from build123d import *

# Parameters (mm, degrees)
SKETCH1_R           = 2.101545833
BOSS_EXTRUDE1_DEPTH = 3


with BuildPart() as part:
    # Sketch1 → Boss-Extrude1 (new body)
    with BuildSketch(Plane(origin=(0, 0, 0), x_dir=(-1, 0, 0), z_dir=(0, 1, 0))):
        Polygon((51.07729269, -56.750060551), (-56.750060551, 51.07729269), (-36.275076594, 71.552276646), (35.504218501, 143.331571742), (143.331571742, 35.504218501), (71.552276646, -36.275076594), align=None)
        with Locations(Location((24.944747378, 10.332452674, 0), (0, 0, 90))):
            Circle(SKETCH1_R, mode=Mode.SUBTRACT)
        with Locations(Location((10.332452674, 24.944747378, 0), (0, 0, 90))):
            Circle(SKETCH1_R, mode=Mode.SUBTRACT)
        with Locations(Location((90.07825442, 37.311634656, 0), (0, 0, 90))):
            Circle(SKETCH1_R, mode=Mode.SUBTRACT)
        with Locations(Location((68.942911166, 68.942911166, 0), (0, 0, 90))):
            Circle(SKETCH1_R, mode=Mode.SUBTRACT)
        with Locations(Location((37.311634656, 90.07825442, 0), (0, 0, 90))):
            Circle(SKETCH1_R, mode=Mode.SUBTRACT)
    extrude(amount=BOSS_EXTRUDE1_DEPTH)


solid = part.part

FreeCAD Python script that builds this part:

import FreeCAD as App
import Part
import Sketcher
from FreeCAD import Vector
Q = App.Units.Quantity


def add_polygon(sketch, points):
    """Adds a closed chain of lines whose ends are joined by coincident constraints."""
    first, n = sketch.GeometryCount, len(points)
    for a, b in zip(points, points[1:] + points[:1]):
        sketch.addGeometry(Part.LineSegment(App.Vector(*a, 0), App.Vector(*b, 0)), False)
    for i in range(n):
        sketch.addConstraint(Sketcher.Constraint("Coincident", first + i, 2, first + (i + 1) % n, 1))

doc = App.newDocument("Part")
body = doc.addObject("PartDesign::Body", "Body")

# Sketch on XZ plane
sketch1 = body.newObject("Sketcher::SketchObject", "Sketch")
sketch1.AttachmentSupport = (doc.getObject("XZ_Plane"), [""])
sketch1.MapMode = "FlatFace"
add_polygon(sketch1, [(56.8, 51.1), (-51.1, -56.8), (-71.6, -36.3), (-143.3, 35.5), (-35.5, 143.3), (36.3, 71.6)])  # lines 0-5
sketch1.addGeometry(Part.Circle(Vector(-90.1, 37.3, 0), Vector(0, 0, 1), 2.1), False)  # 6
sketch1.addGeometry(Part.Circle(Vector(-24.9, 10.3, 0), Vector(0, 0, 1), 2.1), False)  # 7
sketch1.addGeometry(Part.Circle(Vector(-10.3, 24.9, 0), Vector(0, 0, 1), 2.1), False)  # 8
sketch1.addGeometry(Part.Circle(Vector(-68.9, 68.9, 0), Vector(0, 0, 1), 2.1), False)  # 9
sketch1.addGeometry(Part.Circle(Vector(-37.3, 90.1, 0), Vector(0, 0, 1), 2.1), False)  # 10
sketch1.addConstraint([
    Sketcher.Constraint("Equal", 6, 7),
    Sketcher.Constraint("Equal", 7, 8),
    Sketcher.Constraint("Equal", 8, 9),
    Sketcher.Constraint("Equal", 9, 10),
    Sketcher.Constraint("Perpendicular", 0, 1),
    Sketcher.Constraint("Parallel", 1, 2),
    Sketcher.Constraint("Perpendicular", 2, 3),
    Sketcher.Constraint("Perpendicular", 3, 4),
    Sketcher.Constraint("Parallel", 4, 5),
    Sketcher.Constraint("Equal", 2, 4),
    Sketcher.Constraint("Angle", 0, Q("-135 deg")),
    Sketcher.Constraint("Diameter", 6, Q("4.203092 mm")),
    Sketcher.Constraint("Distance", 1, Q("28.956 mm")),
    Sketcher.Constraint("DistanceX", 6, 3, 8, 3, Q("79.745802 mm")),
    Sketcher.Constraint("DistanceY", 7, 3, 10, 3, Q("79.745802 mm")),
    Sketcher.Constraint("DistanceX", 9, 3, -1, 1, Q("68.942911 mm")),
    Sketcher.Constraint("DistanceY", -1, 1, 9, 3, Q("68.942911 mm")),
    Sketcher.Constraint("DistanceY", 0, 2, -1, 1, Q("56.750061 mm")),
    Sketcher.Constraint("DistanceX", 2, 2, -1, 1, Q("143.331572 mm")),
    Sketcher.Constraint("DistanceY", -1, 1, 2, 2, Q("35.504219 mm")),
    Sketcher.Constraint("DistanceX", 3, 2, -1, 1, Q("35.504219 mm")),
    Sketcher.Constraint("DistanceY", 7, 3, 6, 3, Q("26.979182 mm")),
    Sketcher.Constraint("DistanceY", 7, 3, 9, 3, Q("58.610458 mm")),
    Sketcher.Constraint("DistanceX", 9, 3, 8, 3, Q("58.610458 mm")),
    Sketcher.Constraint("DistanceX", 10, 3, 8, 3, Q("26.979182 mm")),
    Sketcher.Constraint("DistanceX", 1, 2, 7, 3, Q("46.607529 mm")),
    Sketcher.Constraint("DistanceY", 8, 3, 4, 2, Q("46.607529 mm")),
])
pad1 = body.newObject("PartDesign::Pad", "Pad")
pad1.Profile = sketch1
pad1.Length = 3
pad1.Reversed = True

doc.recompute()
